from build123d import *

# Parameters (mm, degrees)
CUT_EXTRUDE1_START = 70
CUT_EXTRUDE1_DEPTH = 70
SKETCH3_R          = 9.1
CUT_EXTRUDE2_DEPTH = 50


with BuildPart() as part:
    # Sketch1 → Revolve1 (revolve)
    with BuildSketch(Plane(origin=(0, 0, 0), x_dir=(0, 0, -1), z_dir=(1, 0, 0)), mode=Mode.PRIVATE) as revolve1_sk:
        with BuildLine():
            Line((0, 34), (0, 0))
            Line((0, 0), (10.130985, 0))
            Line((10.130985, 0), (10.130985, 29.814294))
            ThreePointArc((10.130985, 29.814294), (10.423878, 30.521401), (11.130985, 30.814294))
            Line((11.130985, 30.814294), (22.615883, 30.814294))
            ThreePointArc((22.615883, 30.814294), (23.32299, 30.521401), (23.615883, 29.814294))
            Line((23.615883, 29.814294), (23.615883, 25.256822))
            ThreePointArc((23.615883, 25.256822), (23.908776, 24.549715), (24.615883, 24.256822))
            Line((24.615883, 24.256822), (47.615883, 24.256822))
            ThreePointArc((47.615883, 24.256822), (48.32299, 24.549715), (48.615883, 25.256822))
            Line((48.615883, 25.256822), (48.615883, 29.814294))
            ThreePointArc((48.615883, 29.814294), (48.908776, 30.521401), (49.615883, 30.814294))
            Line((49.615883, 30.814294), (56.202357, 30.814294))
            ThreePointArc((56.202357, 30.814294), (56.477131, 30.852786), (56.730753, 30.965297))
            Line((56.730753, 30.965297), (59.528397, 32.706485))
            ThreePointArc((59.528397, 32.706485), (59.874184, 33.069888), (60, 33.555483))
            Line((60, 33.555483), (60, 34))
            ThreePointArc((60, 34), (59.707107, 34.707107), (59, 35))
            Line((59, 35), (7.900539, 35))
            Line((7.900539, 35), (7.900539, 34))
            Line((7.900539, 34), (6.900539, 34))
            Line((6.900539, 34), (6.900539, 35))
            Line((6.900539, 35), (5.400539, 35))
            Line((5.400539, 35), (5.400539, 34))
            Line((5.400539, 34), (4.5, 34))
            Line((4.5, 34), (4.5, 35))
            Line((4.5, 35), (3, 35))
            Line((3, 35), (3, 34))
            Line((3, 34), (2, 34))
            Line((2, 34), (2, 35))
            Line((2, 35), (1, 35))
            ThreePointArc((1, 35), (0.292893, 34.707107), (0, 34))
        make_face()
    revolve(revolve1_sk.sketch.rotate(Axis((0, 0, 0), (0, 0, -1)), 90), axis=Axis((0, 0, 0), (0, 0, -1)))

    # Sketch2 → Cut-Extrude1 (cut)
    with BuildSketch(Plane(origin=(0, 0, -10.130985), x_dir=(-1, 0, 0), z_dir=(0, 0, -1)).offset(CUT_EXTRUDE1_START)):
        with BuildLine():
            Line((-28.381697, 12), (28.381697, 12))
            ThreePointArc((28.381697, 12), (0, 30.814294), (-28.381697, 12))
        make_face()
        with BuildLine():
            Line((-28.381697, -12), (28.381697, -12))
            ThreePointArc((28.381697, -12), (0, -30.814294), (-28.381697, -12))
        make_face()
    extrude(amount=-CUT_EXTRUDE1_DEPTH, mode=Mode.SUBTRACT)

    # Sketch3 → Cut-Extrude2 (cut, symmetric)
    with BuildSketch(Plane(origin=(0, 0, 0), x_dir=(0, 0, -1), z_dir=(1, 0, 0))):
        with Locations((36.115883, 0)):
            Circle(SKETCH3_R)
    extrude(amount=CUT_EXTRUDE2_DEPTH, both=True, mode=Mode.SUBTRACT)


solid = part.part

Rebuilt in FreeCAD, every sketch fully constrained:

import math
import FreeCAD as App
import Part
import Sketcher

doc = App.newDocument("Part")
params = doc.addObject("Spreadsheet::Sheet", "Params")
for row, (alias, value) in enumerate([
    ("sketch1_radius", "0.999999 mm"),
    ("sketch1_width", "34 mm"),
    ("sketch1_height", "23 mm"),
    ("sketch1_height2", "1.5 mm"),
    ("revolution_angle", "360 deg"),
    ("pocket1_length", "70 mm"),
    ("sketch3_diameter", "18.2 mm"),
    ("pocket2_length", "100 mm"),
], start=1):
    params.set(f"A{row}", alias)
    params.set(f"B{row}", "=" + value)
    params.setAlias(f"B{row}", alias)

body = doc.addObject("PartDesign::Body", "Body")

sketch1 = body.newObject("Sketcher::SketchObject", "Sketch")
sketch1.AttachmentSupport = (doc.getObject("YZ_Plane"), [""])
sketch1.MapMode = "FlatFace"
sketch1.addGeometry([
    Part.LineSegment(App.Vector(34, 0, 0), App.Vector(0, 0, 0)),
    Part.LineSegment(App.Vector(0, 0, 0), App.Vector(0, -10.13, 0)),
    Part.LineSegment(App.Vector(0, -10.13, 0), App.Vector(29.81, -10.13, 0)),
    Part.ArcOfCircle(Part.Circle(App.Vector(29.81, -11.13, 0), App.Vector(0, 0, 1), 1), math.radians(0), math.radians(90)),
    Part.LineSegment(App.Vector(30.81, -11.13, 0), App.Vector(30.81, -22.62, 0)),
    Part.ArcOfCircle(Part.Circle(App.Vector(29.81, -22.62, 0), App.Vector(0, 0, 1), 1), math.radians(-90), math.radians(0)),
    Part.LineSegment(App.Vector(29.81, -23.62, 0), App.Vector(25.26, -23.62, 0)),
    Part.ArcOfCircle(Part.Circle(App.Vector(25.26, -24.62, 0), App.Vector(0, 0, 1), 1), math.radians(90), math.radians(180)),
    Part.LineSegment(App.Vector(24.26, -24.62, 0), App.Vector(24.26, -47.62, 0)),
    Part.ArcOfCircle(Part.Circle(App.Vector(25.26, -47.62, 0), App.Vector(0, 0, 1), 1), math.radians(180), math.radians(270)),
    Part.LineSegment(App.Vector(25.26, -48.62, 0), App.Vector(29.81, -48.62, 0)),
    Part.ArcOfCircle(Part.Circle(App.Vector(29.81, -49.62, 0), App.Vector(0, 0, 1), 1), math.radians(0), math.radians(90)),
    Part.LineSegment(App.Vector(30.81, -49.62, 0), App.Vector(30.81, -56.2, 0)),
    Part.ArcOfCircle(Part.Circle(App.Vector(31.81, -56.2, 0), App.Vector(0, 0, 1), 1), math.radians(-180), math.radians(-148)),
    Part.LineSegment(App.Vector(30.97, -56.73, 0), App.Vector(32.71, -59.53, 0)),
    Part.ArcOfCircle(Part.Circle(App.Vector(33.56, -59, 0), App.Vector(0, 0, 1), 1), math.radians(-148), math.radians(-90)),
    Part.LineSegment(App.Vector(33.56, -60, 0), App.Vector(34, -60, 0)),
    Part.ArcOfCircle(Part.Circle(App.Vector(34, -59, 0), App.Vector(0, 0, 1), 1), math.radians(-90), math.radians(0)),
    Part.LineSegment(App.Vector(35, -59, 0), App.Vector(35, -7.9, 0)),
    Part.LineSegment(App.Vector(35, -7.9, 0), App.Vector(34, -7.9, 0)),
    Part.LineSegment(App.Vector(34, -7.9, 0), App.Vector(34, -6.9, 0)),
    Part.LineSegment(App.Vector(34, -6.9, 0), App.Vector(35, -6.9, 0)),
    Part.LineSegment(App.Vector(35, -6.9, 0), App.Vector(35, -5.4, 0)),
    Part.LineSegment(App.Vector(35, -5.4, 0), App.Vector(34, -5.4, 0)),
    Part.LineSegment(App.Vector(34, -5.4, 0), App.Vector(34, -4.5, 0)),
    Part.LineSegment(App.Vector(34, -4.5, 0), App.Vector(35, -4.5, 0)),
    Part.LineSegment(App.Vector(35, -4.5, 0), App.Vector(35, -3, 0)),
    Part.LineSegment(App.Vector(35, -3, 0), App.Vector(34, -3, 0)),
    Part.LineSegment(App.Vector(34, -3, 0), App.Vector(34, -2, 0)),
    Part.LineSegment(App.Vector(34, -2, 0), App.Vector(35, -2, 0)),
    Part.LineSegment(App.Vector(35, -2, 0), App.Vector(35, -1, 0)),
    Part.ArcOfCircle(Part.Circle(App.Vector(34, -1, 0), App.Vector(0, 0, 1), 1), math.radians(0), math.radians(90)),
], False)
sketch1.addConstraint([
    Sketcher.Constraint("Coincident", 0, 2, 1, 1),
    Sketcher.Constraint("Coincident", 1, 2, 2, 1),
    Sketcher.Constraint("Tangent", 2, 2, 3, 2),
    Sketcher.Constraint("Tangent", 3, 1, 4, 1),
    Sketcher.Constraint("Tangent", 4, 2, 5, 2),
    Sketcher.Constraint("Tangent", 5, 1, 6, 1),
    Sketcher.Constraint("Tangent", 6, 2, 7, 1),
    Sketcher.Constraint("Tangent", 7, 2, 8, 1),
    Sketcher.Constraint("Tangent", 8, 2, 9, 1),
    Sketcher.Constraint("Tangent", 9, 2, 10, 1),
    Sketcher.Constraint("Tangent", 10, 2, 11, 2),
    Sketcher.Constraint("Tangent", 11, 1, 12, 1),
    Sketcher.Constraint("Coincident", 12, 2, 13, 1),
    Sketcher.Constraint("Tangent", 13, 2, 14, 1),
    Sketcher.Constraint("Tangent", 14, 2, 15, 1),
    Sketcher.Constraint("Tangent", 15, 2, 16, 1),
    Sketcher.Constraint("Tangent", 16, 2, 17, 1),
    Sketcher.Constraint("Tangent", 17, 2, 18, 1),
    Sketcher.Constraint("Coincident", 18, 2, 19, 1),
    Sketcher.Constraint("Coincident", 19, 2, 20, 1),
    Sketcher.Constraint("Coincident", 20, 2, 21, 1),
    Sketcher.Constraint("Coincident", 21, 2, 22, 1),
    Sketcher.Constraint("Coincident", 22, 2, 23, 1),
    Sketcher.Constraint("Coincident", 23, 2, 24, 1),
    Sketcher.Constraint("Coincident", 24, 2, 25, 1),
    Sketcher.Constraint("Coincident", 25, 2, 26, 1),
    Sketcher.Constraint("Coincident", 26, 2, 27, 1),
    Sketcher.Constraint("Coincident", 27, 2, 28, 1),
    Sketcher.Constraint("Coincident", 28, 2, 29, 1),
    Sketcher.Constraint("Coincident", 29, 2, 30, 1),
    Sketcher.Constraint("Tangent", 30, 2, 31, 1),
    Sketcher.Constraint("Tangent", 31, 2, 0, 1),
    Sketcher.Constraint("Horizontal", 0),
    Sketcher.Constraint("Vertical", 1),
    Sketcher.Constraint("Horizontal", 2),
    Sketcher.Constraint("Vertical", 4),
    Sketcher.Constraint("Horizontal", 6),
    Sketcher.Constraint("Vertical", 8),
    Sketcher.Constraint("Horizontal", 10),
    Sketcher.Constraint("Vertical", 12),
    Sketcher.Constraint("Horizontal", 16),
    Sketcher.Constraint("Vertical", 18),
    Sketcher.Constraint("Horizontal", 19),
    Sketcher.Constraint("Vertical", 20),
    Sketcher.Constraint("Horizontal", 21),
    Sketcher.Constraint("Vertical", 22),
    Sketcher.Constraint("Horizontal", 23),
    Sketcher.Constraint("Vertical", 24),
    Sketcher.Constraint("Horizontal", 25),
    Sketcher.Constraint("Vertical", 26),
    Sketcher.Constraint("Horizontal", 27),
    Sketcher.Constraint("Vertical", 28),
    Sketcher.Constraint("Horizontal", 29),
    Sketcher.Constraint("Vertical", 30),
    Sketcher.Constraint("Coincident", 0, 2, -1, 1),
    Sketcher.Constraint("Equal", 3, 5),
    Sketcher.Constraint("Equal", 5, 7),
    Sketcher.Constraint("Equal", 7, 9),
    Sketcher.Constraint("Equal", 9, 11),
    Sketcher.Constraint("Equal", 11, 17),
    Sketcher.Constraint("Equal", 17, 31),
    Sketcher.Constraint("Horizontal", 15, 3, 17, 2),
    Sketcher.Constraint("Vertical", 5, 3, 11, 3),
    Sketcher.Constraint("Vertical", 17, 3, 31, 3),
    Sketcher.Constraint("Vertical", 16, 2, 19, 2),
    Sketcher.Constraint("Vertical", 18, 2, 21, 2),
    Sketcher.Constraint("Vertical", 20, 2, 23, 2),
    Sketcher.Constraint("Vertical", 22, 2, 25, 2),
    Sketcher.Constraint("Vertical", 24, 2, 27, 2),
    Sketcher.Constraint("Equal", 29, 20),
    Sketcher.Constraint("Equal", 22, 26),
    Sketcher.Constraint("Equal", 20, 28),
    Sketcher.Constraint("Equal", 28, 30),
    Sketcher.Constraint("Radius", 3, 0.999999),
    Sketcher.Constraint("DistanceX", 0, 2, 0, 1, 34.0),
    Sketcher.Constraint("DistanceY", 8, 2, 8, 1, 23.0),
    Sketcher.Constraint("DistanceY", 22, 1, 22, 2, 1.5),
    Sketcher.Constraint("DistanceY", 15, 3, -1, 1, 58.999999),
    Sketcher.Constraint("Radius", 13, 1.000009),
    Sketcher.Constraint("DistanceX", 14, 2, 15, 3, 0.848998),
    Sketcher.Constraint("DistanceY", 18, 1, 18, 2, 51.099461),
    Sketcher.Constraint("DistanceY", 5, 3, 3, 3, 11.484899),
    Sketcher.Constraint("DistanceX", 13, 3, 17, 3, 2.185698),
    Sketcher.Constraint("Distance", 14, 3.295231),
    Sketcher.Constraint("DistanceX", 6, 2, 6, 1, 4.557472),
    Sketcher.Constraint("DistanceY", 1, 2, 1, 1, 10.130985),
    Sketcher.Constraint("DistanceY", 12, 2, 12, 1, 6.586474),
])
sketch1.setExpression("Constraints[73]", "Params.sketch1_radius")
sketch1.setExpression("Constraints[74]", "Params.sketch1_width")
sketch1.setExpression("Constraints[75]", "Params.sketch1_height")
sketch1.setExpression("Constraints[76]", "Params.sketch1_height2")
revolution = body.newObject("PartDesign::Revolution", "Revolution")
revolution.Profile = sketch1
revolution.ReferenceAxis = (sketch1, ["V_Axis"])
revolution.setExpression("Angle", "Params.revolution_angle")

sketch2 = body.newObject("Sketcher::SketchObject", "Sketch001")
sketch2.AttachmentSupport = (doc.getObject("XY_Plane"), [""])
sketch2.MapMode = "FlatFace"
sketch2.AttachmentOffset = App.Placement(App.Vector(0, 0, -80.130985), App.Rotation())
sketch2.addGeometry([
    Part.LineSegment(App.Vector(28, 12, 0), App.Vector(-28, 12, 0)),
    Part.ArcOfCircle(Part.Circle(App.Vector(0, 0, 0), App.Vector(0, 0, 1), 31), math.radians(23), math.radians(157)),
    Part.LineSegment(App.Vector(-28, -12, 0), App.Vector(28, -12, 0)),
    Part.ArcOfCircle(Part.Circle(App.Vector(0, 0, 0), App.Vector(0, 0, 1), 31), math.radians(-157), math.radians(-23)),
], False)
sketch2.addConstraint([
    Sketcher.Constraint("Coincident", 0, 1, 1, 1),
    Sketcher.Constraint("Coincident", 1, 2, 0, 2),
    Sketcher.Constraint("Coincident", 2, 1, 3, 1),
    Sketcher.Constraint("Coincident", 3, 2, 2, 2),
    Sketcher.Constraint("Horizontal", 0),
    Sketcher.Constraint("Horizontal", 2),
    Sketcher.Constraint("Coincident", 1, 3, -1, 1),
    Sketcher.Constraint("Coincident", 3, 3, -1, 1),
    Sketcher.Constraint("Equal", 1, 3),
    Sketcher.Constraint("Vertical", 1, 2, 2, 1),
    Sketcher.Constraint("DistanceY", -1, 1, 0, 1, 12.0),
    Sketcher.Constraint("Radius", 1, 30.814294),
])
pocket1 = body.newObject("PartDesign::Pocket", "Pocket")
pocket1.Profile = sketch2
pocket1.setExpression("Length", "Params.pocket1_length")
pocket1.Reversed = True

sketch3 = body.newObject("Sketcher::SketchObject", "Sketch002")
sketch3.AttachmentSupport = (doc.getObject("YZ_Plane"), [""])
sketch3.MapMode = "FlatFace"
sketch3.addGeometry(Part.Circle(App.Vector(0, -36, 0), App.Vector(0, 0, 1), 9), False)
sketch3.addConstraint([
    Sketcher.Constraint("PointOnObject", 0, 3, -2),
    Sketcher.Constraint("Diameter", 0, 18.2),
    Sketcher.Constraint("DistanceY", 0, 3, -1, 1, 36.115883),
])
sketch3.setExpression("Constraints[1]", "Params.sketch3_diameter")
pocket2 = body.newObject("PartDesign::Pocket", "Pocket001")
pocket2.Profile = sketch3
pocket2.setExpression("Length", "Params.pocket2_length")
pocket2.Midplane = True

doc.recompute()
